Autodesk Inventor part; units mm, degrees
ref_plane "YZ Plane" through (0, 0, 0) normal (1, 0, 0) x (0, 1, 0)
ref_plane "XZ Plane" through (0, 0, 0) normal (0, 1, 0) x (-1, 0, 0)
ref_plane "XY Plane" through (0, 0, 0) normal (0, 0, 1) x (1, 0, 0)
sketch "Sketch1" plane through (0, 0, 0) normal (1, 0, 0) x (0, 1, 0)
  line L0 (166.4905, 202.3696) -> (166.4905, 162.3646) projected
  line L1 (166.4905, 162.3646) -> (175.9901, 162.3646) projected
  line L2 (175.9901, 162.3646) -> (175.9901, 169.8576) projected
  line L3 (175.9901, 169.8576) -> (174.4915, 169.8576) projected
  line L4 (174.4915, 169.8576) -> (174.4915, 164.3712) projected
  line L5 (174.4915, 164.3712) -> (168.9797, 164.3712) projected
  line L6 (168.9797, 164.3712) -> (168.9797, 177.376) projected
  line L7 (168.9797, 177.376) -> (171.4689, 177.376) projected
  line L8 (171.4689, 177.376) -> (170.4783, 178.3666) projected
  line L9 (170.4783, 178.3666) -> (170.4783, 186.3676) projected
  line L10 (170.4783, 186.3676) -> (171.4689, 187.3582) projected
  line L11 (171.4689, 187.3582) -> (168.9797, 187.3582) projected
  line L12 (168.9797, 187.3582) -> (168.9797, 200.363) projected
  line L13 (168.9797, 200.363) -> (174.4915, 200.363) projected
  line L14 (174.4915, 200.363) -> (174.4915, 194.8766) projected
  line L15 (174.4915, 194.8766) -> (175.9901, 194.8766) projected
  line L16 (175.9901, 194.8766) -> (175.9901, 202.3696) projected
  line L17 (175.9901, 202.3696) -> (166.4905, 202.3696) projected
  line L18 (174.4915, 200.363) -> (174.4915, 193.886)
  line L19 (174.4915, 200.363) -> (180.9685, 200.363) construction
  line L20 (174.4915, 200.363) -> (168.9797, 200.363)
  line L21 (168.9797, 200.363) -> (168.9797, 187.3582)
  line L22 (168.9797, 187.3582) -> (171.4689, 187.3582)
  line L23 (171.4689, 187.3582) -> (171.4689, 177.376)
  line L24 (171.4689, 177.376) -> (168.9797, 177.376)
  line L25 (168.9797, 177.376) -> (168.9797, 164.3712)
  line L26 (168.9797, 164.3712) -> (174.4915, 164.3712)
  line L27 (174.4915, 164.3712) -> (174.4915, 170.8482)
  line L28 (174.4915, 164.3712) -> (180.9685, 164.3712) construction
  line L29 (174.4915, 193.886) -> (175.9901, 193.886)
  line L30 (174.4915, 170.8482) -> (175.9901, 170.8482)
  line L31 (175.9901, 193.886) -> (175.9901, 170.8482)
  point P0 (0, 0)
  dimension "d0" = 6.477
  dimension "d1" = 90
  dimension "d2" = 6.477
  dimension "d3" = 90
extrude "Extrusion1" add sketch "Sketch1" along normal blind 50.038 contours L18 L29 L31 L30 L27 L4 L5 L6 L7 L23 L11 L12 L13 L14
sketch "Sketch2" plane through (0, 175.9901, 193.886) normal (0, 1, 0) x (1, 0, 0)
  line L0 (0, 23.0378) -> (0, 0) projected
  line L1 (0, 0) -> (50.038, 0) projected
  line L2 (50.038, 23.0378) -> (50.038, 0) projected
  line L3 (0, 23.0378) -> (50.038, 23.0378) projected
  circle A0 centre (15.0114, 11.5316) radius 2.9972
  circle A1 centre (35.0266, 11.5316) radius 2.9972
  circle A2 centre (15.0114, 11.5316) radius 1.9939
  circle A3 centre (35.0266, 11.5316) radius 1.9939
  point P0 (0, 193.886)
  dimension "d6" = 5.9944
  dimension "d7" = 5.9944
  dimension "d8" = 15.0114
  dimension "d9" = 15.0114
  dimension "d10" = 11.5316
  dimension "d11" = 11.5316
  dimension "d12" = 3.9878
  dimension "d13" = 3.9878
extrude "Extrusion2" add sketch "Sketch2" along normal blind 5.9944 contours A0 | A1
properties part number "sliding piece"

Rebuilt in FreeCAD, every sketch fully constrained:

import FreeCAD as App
import Part
import Sketcher

V = App.Vector
Q = App.Units.Quantity


def add_polygon(sketch, points):
    """Adds a closed chain of lines whose ends are joined by coincident constraints."""
    first, n = sketch.GeometryCount, len(points)
    for a, b in zip(points, points[1:] + points[:1]):
        sketch.addGeometry(Part.LineSegment(App.Vector(*a, 0), App.Vector(*b, 0)), False)
    for i in range(n):
        sketch.addConstraint(Sketcher.Constraint("Coincident", first + i, 2, first + (i + 1) % n, 1))

doc = App.newDocument("Part")
body = doc.addObject("PartDesign::Body", "Body")

# Sketch on YZ plane
sketch1 = body.newObject("Sketcher::SketchObject", "Sketch")
sketch1.AttachmentSupport = (doc.getObject("YZ_Plane"), [""])
sketch1.MapMode = "FlatFace"
add_polygon(sketch1, [(174.4915, 193.886), (174.4915, 200.363), (168.9797, 200.363), (168.9797, 187.3582), (171.4689, 187.3582), (171.4689, 177.376), (168.9797, 177.376), (168.9797, 164.3712), (174.4915, 164.3712), (174.4915, 170.8482), (175.9901, 170.8482), (175.9901, 193.886)])  # lines 0-11
sketch1.addConstraint(Sketcher.Constraint("Vertical", 0))
sketch1.addConstraint(Sketcher.Constraint("Horizontal", 1))
sketch1.addConstraint(Sketcher.Constraint("Vertical", 2))
sketch1.addConstraint(Sketcher.Constraint("Horizontal", 3))
sketch1.addConstraint(Sketcher.Constraint("Vertical", 4))
sketch1.addConstraint(Sketcher.Constraint("Horizontal", 5))
sketch1.addConstraint(Sketcher.Constraint("Vertical", 6))
sketch1.addConstraint(Sketcher.Constraint("Horizontal", 7))
sketch1.addConstraint(Sketcher.Constraint("Vertical", 8))
sketch1.addConstraint(Sketcher.Constraint("Horizontal", 9))
sketch1.addConstraint(Sketcher.Constraint("Vertical", 10))
sketch1.addConstraint(Sketcher.Constraint("Horizontal", 11))
sketch1.addConstraint(Sketcher.Constraint("Vertical", 2, 2, 5, 2))
sketch1.addConstraint(Sketcher.Constraint("Vertical", 0, 2, 7, 2))
sketch1.addConstraint(Sketcher.Constraint("Equal", 2, 6))
sketch1.addConstraint(Sketcher.Constraint("Equal", 0, 8))
sketch1.addConstraint(Sketcher.Constraint("DistanceY", 0, 1, 0, 2, Q("0.255 in")))
sketch1.addConstraint(Sketcher.Constraint("DistanceX", 1, 2, 1, 1, Q("0.217 in")))
sketch1.addConstraint(Sketcher.Constraint("DistanceX", 3, 1, 3, 2, Q("0.098 in")))
sketch1.addConstraint(Sketcher.Constraint("DistanceX", 9, 1, 9, 2, Q("0.059 in")))
sketch1.addConstraint(Sketcher.Constraint("DistanceY", 2, 2, 2, 1, Q("0.512 in")))
sketch1.addConstraint(Sketcher.Constraint("DistanceY", 4, 2, 4, 1, Q("0.393 in")))
sketch1.addConstraint(Sketcher.Constraint("DistanceY", -1, 1, 0, 2, Q("7.8883 in")))
sketch1.addConstraint(Sketcher.Constraint("DistanceX", -1, 1, 0, 2, 174.4915))
pad1 = body.newObject("PartDesign::Pad", "Pad")
pad1.Profile = sketch1
pad1.Length = Q("1.97 in")

# Sketch on XZ plane
sketch2 = body.newObject("Sketcher::SketchObject", "Sketch001")
sketch2.AttachmentSupport = (doc.getObject("XZ_Plane"), [""])
sketch2.MapMode = "FlatFace"
sketch2.AttachmentOffset = App.Placement(V(0, 0, -175.9901), App.Rotation())
sketch2.addGeometry(Part.Circle(V(15.0114, 182.3544, 0), V(0, 0, 1), 2.9972), False)
sketch2.addGeometry(Part.Circle(V(15.0114, 182.3544, 0), V(0, 0, 1), 1.9939), False)
sketch2.addGeometry(Part.Circle(V(35.0266, 182.3544, 0), V(0, 0, 1), 2.9972), False)
sketch2.addGeometry(Part.Circle(V(35.0266, 182.3544, 0), V(0, 0, 1), 1.9939), False)
sketch2.addConstraint(Sketcher.Constraint("Coincident", 1, 3, 0, 3))
sketch2.addConstraint(Sketcher.Constraint("Coincident", 3, 3, 2, 3))
sketch2.addConstraint(Sketcher.Constraint("Equal", 0, 2))
sketch2.addConstraint(Sketcher.Constraint("Equal", 1, 3))
sketch2.addConstraint(Sketcher.Constraint("Horizontal", 1, 3, 2, 3))
sketch2.addConstraint(Sketcher.Constraint("Diameter", 0, Q("0.236 in")))
sketch2.addConstraint(Sketcher.Constraint("Diameter", 1, Q("0.157 in")))
sketch2.addConstraint(Sketcher.Constraint("DistanceX", -1, 1, 0, 3, Q("0.591 in")))
sketch2.addConstraint(Sketcher.Constraint("DistanceX", -1, 1, 2, 3, Q("1.379 in")))
sketch2.addConstraint(Sketcher.Constraint("DistanceY", -1, 1, 0, 3, Q("7.1793 in")))
pad2 = body.newObject("PartDesign::Pad", "Pad001")
pad2.Profile = sketch2
pad2.Length = Q("0.236 in")
pad2.Reversed = True

doc.recompute()
